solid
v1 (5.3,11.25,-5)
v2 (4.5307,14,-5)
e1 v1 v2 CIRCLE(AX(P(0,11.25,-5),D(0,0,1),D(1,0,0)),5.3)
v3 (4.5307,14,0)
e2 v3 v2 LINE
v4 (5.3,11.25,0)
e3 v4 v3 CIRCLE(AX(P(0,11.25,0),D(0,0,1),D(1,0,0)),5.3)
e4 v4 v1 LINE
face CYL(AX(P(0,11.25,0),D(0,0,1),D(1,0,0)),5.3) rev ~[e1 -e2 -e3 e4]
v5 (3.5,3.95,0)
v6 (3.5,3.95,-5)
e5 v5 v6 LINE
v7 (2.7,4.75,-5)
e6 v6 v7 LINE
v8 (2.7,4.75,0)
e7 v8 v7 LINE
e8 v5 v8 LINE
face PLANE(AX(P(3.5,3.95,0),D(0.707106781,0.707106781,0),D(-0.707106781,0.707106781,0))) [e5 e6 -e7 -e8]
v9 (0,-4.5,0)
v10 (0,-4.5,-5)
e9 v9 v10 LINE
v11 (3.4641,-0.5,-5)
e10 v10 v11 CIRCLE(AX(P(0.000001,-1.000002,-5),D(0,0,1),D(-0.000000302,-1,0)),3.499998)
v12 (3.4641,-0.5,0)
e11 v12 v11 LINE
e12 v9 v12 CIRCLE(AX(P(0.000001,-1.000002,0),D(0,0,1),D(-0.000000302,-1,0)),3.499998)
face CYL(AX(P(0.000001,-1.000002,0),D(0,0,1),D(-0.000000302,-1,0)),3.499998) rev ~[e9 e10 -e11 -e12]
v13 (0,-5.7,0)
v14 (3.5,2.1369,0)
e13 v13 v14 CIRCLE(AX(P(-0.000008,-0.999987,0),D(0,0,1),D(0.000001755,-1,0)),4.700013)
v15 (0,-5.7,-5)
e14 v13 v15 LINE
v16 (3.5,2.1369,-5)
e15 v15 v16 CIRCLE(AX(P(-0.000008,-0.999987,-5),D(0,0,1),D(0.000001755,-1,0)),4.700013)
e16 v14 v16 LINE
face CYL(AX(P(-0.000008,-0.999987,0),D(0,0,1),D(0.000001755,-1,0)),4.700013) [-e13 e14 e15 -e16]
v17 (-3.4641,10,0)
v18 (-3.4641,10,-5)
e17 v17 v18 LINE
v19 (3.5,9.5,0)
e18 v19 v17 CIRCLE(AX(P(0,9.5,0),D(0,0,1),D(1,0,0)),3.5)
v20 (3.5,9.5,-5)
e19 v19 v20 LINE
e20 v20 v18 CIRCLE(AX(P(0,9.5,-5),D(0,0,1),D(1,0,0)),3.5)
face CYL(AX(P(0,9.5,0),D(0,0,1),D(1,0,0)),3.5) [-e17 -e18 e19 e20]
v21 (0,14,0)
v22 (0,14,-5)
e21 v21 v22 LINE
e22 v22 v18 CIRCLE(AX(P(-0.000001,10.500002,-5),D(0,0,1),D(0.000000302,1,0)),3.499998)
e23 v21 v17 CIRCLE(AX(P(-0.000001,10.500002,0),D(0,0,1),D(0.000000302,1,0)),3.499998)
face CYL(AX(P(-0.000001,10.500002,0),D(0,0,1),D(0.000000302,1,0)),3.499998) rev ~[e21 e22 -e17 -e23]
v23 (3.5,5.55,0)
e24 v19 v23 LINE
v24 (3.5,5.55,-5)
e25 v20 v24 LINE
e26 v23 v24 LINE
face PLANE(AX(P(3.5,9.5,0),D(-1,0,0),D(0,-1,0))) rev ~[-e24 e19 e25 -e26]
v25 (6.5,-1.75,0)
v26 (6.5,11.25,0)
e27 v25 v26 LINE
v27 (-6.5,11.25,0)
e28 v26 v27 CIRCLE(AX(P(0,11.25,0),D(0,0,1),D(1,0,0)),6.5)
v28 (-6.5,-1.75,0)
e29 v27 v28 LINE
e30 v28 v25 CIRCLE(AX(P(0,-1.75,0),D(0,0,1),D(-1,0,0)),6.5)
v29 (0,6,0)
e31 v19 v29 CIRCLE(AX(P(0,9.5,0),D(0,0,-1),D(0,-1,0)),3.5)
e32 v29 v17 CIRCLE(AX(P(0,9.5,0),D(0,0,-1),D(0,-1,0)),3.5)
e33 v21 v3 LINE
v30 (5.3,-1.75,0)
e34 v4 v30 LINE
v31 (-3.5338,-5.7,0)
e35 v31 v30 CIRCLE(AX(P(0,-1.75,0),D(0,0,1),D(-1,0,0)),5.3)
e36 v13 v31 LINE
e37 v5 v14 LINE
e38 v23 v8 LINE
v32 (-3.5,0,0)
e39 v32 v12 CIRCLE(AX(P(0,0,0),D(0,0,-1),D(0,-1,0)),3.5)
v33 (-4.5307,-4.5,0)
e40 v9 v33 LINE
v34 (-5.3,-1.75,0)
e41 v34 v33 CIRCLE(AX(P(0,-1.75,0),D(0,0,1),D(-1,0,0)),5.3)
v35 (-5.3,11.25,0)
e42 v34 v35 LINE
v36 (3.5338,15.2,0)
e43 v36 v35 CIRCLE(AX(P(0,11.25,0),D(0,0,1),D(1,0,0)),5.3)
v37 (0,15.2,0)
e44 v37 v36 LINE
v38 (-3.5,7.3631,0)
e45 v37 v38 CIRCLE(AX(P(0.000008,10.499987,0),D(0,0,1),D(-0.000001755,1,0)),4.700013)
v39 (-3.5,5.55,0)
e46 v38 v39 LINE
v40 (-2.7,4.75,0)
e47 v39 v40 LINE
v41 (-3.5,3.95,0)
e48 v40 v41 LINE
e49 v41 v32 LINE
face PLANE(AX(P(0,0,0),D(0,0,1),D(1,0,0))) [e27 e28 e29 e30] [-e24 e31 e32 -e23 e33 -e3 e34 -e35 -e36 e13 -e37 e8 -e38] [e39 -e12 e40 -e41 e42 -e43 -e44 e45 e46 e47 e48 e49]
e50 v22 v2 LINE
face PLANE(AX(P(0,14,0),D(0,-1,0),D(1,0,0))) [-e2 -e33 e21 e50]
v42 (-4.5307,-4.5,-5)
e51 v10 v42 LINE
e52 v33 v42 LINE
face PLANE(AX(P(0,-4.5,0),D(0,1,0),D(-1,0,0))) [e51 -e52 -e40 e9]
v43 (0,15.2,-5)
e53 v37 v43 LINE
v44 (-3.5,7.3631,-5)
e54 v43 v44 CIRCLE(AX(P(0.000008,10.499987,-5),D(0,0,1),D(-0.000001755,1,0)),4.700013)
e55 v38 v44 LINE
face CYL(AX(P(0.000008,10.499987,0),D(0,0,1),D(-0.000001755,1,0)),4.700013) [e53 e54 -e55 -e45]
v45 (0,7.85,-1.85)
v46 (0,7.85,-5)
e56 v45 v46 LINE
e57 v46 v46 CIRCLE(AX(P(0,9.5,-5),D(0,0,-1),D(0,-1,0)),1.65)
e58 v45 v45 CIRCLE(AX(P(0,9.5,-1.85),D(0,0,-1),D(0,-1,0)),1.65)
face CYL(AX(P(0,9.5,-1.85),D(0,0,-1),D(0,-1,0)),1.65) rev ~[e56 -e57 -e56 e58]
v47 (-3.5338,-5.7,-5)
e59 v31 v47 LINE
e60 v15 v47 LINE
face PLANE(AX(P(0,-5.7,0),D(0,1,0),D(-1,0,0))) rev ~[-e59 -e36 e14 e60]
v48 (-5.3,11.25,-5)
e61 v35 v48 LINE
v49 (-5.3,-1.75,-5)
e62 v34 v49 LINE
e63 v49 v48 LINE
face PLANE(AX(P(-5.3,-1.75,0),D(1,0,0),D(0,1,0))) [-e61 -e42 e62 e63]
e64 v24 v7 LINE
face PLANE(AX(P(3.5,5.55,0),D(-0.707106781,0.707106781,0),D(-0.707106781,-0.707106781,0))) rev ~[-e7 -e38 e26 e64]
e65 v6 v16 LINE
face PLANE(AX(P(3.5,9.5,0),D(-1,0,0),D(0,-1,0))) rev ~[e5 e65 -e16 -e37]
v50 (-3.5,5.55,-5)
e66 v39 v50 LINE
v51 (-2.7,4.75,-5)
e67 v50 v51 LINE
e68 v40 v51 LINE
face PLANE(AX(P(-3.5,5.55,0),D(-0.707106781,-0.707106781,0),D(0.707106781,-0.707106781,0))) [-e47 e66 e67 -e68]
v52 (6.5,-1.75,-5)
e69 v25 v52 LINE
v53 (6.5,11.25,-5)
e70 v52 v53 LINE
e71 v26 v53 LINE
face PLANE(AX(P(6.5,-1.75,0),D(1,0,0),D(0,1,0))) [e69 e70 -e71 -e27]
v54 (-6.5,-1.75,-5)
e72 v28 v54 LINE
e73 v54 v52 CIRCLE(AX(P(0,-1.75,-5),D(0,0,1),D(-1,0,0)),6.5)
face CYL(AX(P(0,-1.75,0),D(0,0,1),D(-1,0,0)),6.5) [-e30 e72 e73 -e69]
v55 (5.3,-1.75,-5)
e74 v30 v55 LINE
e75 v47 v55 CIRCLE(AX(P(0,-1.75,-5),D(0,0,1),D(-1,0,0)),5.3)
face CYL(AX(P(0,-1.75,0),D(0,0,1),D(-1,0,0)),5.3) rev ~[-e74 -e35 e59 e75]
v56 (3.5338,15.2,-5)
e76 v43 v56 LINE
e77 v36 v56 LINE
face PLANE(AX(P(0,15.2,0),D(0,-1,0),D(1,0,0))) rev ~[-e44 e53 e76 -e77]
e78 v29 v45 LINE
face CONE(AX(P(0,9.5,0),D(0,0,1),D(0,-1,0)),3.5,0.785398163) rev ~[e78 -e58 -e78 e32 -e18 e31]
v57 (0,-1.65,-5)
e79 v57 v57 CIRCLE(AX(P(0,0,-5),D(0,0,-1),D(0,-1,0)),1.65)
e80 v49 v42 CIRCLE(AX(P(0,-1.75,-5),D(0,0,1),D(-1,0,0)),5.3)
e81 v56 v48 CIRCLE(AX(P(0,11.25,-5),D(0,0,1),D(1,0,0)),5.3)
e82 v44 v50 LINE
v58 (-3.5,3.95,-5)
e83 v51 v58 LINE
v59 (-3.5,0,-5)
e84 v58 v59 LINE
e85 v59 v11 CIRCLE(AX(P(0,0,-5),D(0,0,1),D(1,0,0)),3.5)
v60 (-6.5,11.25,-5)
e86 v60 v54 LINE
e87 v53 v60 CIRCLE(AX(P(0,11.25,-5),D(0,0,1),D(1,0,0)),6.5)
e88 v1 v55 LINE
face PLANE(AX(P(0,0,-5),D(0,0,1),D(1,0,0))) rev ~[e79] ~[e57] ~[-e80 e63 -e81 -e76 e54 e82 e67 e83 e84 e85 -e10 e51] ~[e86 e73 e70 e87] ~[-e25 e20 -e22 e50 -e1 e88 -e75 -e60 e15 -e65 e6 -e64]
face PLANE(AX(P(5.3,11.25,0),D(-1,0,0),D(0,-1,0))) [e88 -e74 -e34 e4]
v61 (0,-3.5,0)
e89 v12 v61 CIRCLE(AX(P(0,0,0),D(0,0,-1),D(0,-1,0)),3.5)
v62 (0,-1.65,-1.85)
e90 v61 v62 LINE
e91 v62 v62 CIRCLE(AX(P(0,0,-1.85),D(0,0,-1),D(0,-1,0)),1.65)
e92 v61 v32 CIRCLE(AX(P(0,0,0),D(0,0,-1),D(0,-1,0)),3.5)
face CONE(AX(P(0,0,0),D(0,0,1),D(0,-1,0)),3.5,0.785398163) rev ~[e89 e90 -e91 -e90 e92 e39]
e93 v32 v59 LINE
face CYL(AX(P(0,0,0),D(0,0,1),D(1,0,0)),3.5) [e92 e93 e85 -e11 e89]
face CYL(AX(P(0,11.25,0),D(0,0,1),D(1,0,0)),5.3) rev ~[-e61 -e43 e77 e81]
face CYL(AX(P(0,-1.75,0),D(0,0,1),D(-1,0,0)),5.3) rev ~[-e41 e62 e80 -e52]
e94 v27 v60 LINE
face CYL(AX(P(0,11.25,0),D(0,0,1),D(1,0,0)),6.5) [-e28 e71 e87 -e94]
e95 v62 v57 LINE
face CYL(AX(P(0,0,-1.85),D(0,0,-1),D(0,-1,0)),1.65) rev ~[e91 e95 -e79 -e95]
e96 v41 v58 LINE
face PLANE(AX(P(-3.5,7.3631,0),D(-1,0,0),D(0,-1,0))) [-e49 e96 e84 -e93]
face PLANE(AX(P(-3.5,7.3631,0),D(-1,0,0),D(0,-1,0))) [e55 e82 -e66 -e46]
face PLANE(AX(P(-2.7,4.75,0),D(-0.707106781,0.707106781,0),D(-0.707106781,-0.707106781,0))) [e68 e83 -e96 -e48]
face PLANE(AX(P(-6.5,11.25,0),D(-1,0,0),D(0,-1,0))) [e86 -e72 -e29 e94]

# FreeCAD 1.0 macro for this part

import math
import FreeCAD as App
import Part
import Sketcher

V = App.Vector
Q = App.Units.Quantity


def add_polygon(sketch, points):
    """Adds a closed chain of lines whose ends are joined by coincident constraints."""
    first, n = sketch.GeometryCount, len(points)
    for a, b in zip(points, points[1:] + points[:1]):
        sketch.addGeometry(Part.LineSegment(App.Vector(*a, 0), App.Vector(*b, 0)), False)
    for i in range(n):
        sketch.addConstraint(Sketcher.Constraint("Coincident", first + i, 2, first + (i + 1) % n, 1))

doc = App.newDocument("Part")
body = doc.addObject("PartDesign::Body", "Body")

# Sketch on XY plane
sketch1 = doc.addObject("Sketcher::SketchObject", "Sketch")
body.addObject(sketch1)
sketch1.AttachmentSupport = (doc.XY_Plane, [""])
sketch1.MapMode = "FlatFace"
sketch1.addGeometry(Part.ArcOfCircle(Part.Circle(V(0, -2, 0), V(0, 0, 1), 6), math.radians(180), math.radians(360)), False)
sketch1.addGeometry(Part.LineSegment(V(6, -2, 0), V(6, 11, 0)), False)
sketch1.addGeometry(Part.ArcOfCircle(Part.Circle(V(0, 11, 0), V(0, 0, 1), 6), math.radians(0), math.radians(180)), False)
sketch1.addGeometry(Part.LineSegment(V(-6, 11, 0), V(-6, -2, 0)), False)
sketch1.addConstraint(Sketcher.Constraint("Tangent", 0, 2, 1, 1))
sketch1.addConstraint(Sketcher.Constraint("Tangent", 1, 2, 2, 1))
sketch1.addConstraint(Sketcher.Constraint("Tangent", 2, 2, 3, 1))
sketch1.addConstraint(Sketcher.Constraint("Tangent", 3, 2, 0, 1))
sketch1.addConstraint(Sketcher.Constraint("Vertical", 1))
sketch1.addConstraint(Sketcher.Constraint("Vertical", 3))
sketch1.addConstraint(Sketcher.Constraint("PointOnObject", 0, 3, -2))
sketch1.addConstraint(Sketcher.Constraint("Radius", 0, Q("6.5 mm")))
sketch1.addConstraint(Sketcher.Constraint("DistanceY", 1, 1, 1, 2, Q("13 mm")))
sketch1.addConstraint(Sketcher.Constraint("DistanceY", 0, 3, -1, 1, Q("1.75 mm")))
pad1 = doc.addObject("PartDesign::Pad", "Pad")
body.addObject(pad1)
pad1.Profile = sketch1
pad1.Length = 5
pad1.Reversed = True

# Sketch on XY plane
sketch2 = doc.addObject("Sketcher::SketchObject", "Sketch001")
body.addObject(sketch2)
sketch2.AttachmentSupport = (doc.XY_Plane, [""])
sketch2.MapMode = "FlatFace"
sketch2.addGeometry(Part.Circle(V(0, 9.5, 0), V(0, 0, 1), 1.6), False)
sketch2.addGeometry(Part.Circle(V(0, 0, 0), V(0, 0, 1), 1.6), False)
sketch2.addConstraint(Sketcher.Constraint("Coincident", 1, 3, -1, 1))
sketch2.addConstraint(Sketcher.Constraint("Equal", 0, 1))
sketch2.addConstraint(Sketcher.Constraint("PointOnObject", 0, 3, -2))
sketch2.addConstraint(Sketcher.Constraint("Diameter", 0, Q("3.3 mm")))
sketch2.addConstraint(Sketcher.Constraint("DistanceY", -1, 1, 0, 3, Q("9.5 mm")))
doc.recompute()
hole = doc.addObject("PartDesign::Hole", "Hole")
body.addObject(hole)
hole.Profile = sketch2
hole.ThreadType = "None"
hole.Diameter = 3.3
hole.DepthType = "ThroughAll"
hole.HoleCutType = "Countersink"
hole.HoleCutDiameter = 7
hole.HoleCutCountersinkAngle = 90

# Sketch on XY plane
sketch3 = doc.addObject("Sketcher::SketchObject", "Sketch002")
body.addObject(sketch3)
sketch3.AttachmentSupport = (doc.XY_Plane, [""])
sketch3.MapMode = "FlatFace"
sketch3.addGeometry(Part.ArcOfCircle(Part.Circle(V(0, 9.5, 0), V(0, 0, 1), 3.5), math.radians(0), math.radians(172)), False)
sketch3.addGeometry(Part.LineSegment(V(3.5, 9.5, 0), V(3.5, 2.1, 0)), False)
sketch3.addGeometry(Part.ArcOfCircle(Part.Circle(V(0, -1, 0), V(0, 0, 1), 4.7), math.radians(-90), math.radians(42)), False)
sketch3.addGeometry(Part.LineSegment(V(0, -5.7, 0), V(-3.5, -5.7, 0)), False)
sketch3.addGeometry(Part.ArcOfCircle(Part.Circle(V(0, -1.8, 0), V(0, 0, 1), 5.3), math.radians(-132), math.radians(0)), False)
sketch3.addGeometry(Part.LineSegment(V(5.3, -1.8, 0), V(5.3, 11.2, 0)), False)
sketch3.addGeometry(Part.ArcOfCircle(Part.Circle(V(0, 11.2, 0), V(0, 0, 1), 5.3), math.radians(0), math.radians(31)), False)
sketch3.addGeometry(Part.LineSegment(V(4.5, 14, 0), V(0, 14, 0)), False)
sketch3.addGeometry(Part.ArcOfCircle(Part.Circle(V(0, 10.5, 0), V(0, 0, 1), 3.5), math.radians(90), math.radians(188)), False)
sketch3.addGeometry(Part.LineSegment(V(-3.5, 0, 0), V(-3.5, 7.4, 0)), False)
sketch3.addGeometry(Part.ArcOfCircle(Part.Circle(V(0, 10.5, 0), V(0, 0, 1), 4.7), math.radians(90), math.radians(222)), False)
sketch3.addGeometry(Part.LineSegment(V(0, 15.2, 0), V(3.5, 15.2, 0)), False)
sketch3.addGeometry(Part.ArcOfCircle(Part.Circle(V(0, 11.2, 0), V(0, 0, 1), 5.3), math.radians(48), math.radians(180)), False)
sketch3.addGeometry(Part.LineSegment(V(-5.3, 11.2, 0), V(-5.3, -1.8, 0)), False)
sketch3.addGeometry(Part.ArcOfCircle(Part.Circle(V(0, -1.8, 0), V(0, 0, 1), 5.3), math.radians(180), math.radians(211)), False)
sketch3.addGeometry(Part.LineSegment(V(-4.5, -4.5, 0), V(0, -4.5, 0)), False)
sketch3.addGeometry(Part.ArcOfCircle(Part.Circle(V(0, -1, 0), V(0, 0, 1), 3.5), math.radians(-90), math.radians(8)), False)
sketch3.addGeometry(Part.ArcOfCircle(Part.Circle(V(0, 0, 0), V(0, 0, 1), 3.5), math.radians(180), math.radians(352)), False)
sketch3.addConstraint(Sketcher.Constraint("Tangent", 0, 1, 1, 1))
sketch3.addConstraint(Sketcher.Constraint("Coincident", 1, 2, 2, 2))
sketch3.addConstraint(Sketcher.Constraint("Tangent", 2, 1, 3, 1))
sketch3.addConstraint(Sketcher.Constraint("Coincident", 3, 2, 4, 1))
sketch3.addConstraint(Sketcher.Constraint("Tangent", 4, 2, 5, 1))
sketch3.addConstraint(Sketcher.Constraint("Tangent", 5, 2, 6, 1))
sketch3.addConstraint(Sketcher.Constraint("Coincident", 6, 2, 7, 1))
sketch3.addConstraint(Sketcher.Constraint("Tangent", 7, 2, 8, 1))
sketch3.addConstraint(Sketcher.Constraint("Coincident", 8, 2, 0, 2))
sketch3.addConstraint(Sketcher.Constraint("Coincident", 9, 2, 10, 2))
sketch3.addConstraint(Sketcher.Constraint("Tangent", 10, 1, 11, 1))
sketch3.addConstraint(Sketcher.Constraint("Coincident", 11, 2, 12, 1))
sketch3.addConstraint(Sketcher.Constraint("Tangent", 12, 2, 13, 1))
sketch3.addConstraint(Sketcher.Constraint("Tangent", 13, 2, 14, 1))
sketch3.addConstraint(Sketcher.Constraint("Coincident", 14, 2, 15, 1))
sketch3.addConstraint(Sketcher.Constraint("Tangent", 15, 2, 16, 1))
sketch3.addConstraint(Sketcher.Constraint("Coincident", 16, 2, 17, 2))
sketch3.addConstraint(Sketcher.Constraint("Tangent", 17, 1, 9, 1))
sketch3.addConstraint(Sketcher.Constraint("Vertical", 1))
sketch3.addConstraint(Sketcher.Constraint("Horizontal", 3))
sketch3.addConstraint(Sketcher.Constraint("Vertical", 5))
sketch3.addConstraint(Sketcher.Constraint("Horizontal", 7))
sketch3.addConstraint(Sketcher.Constraint("Vertical", 9))
sketch3.addConstraint(Sketcher.Constraint("Horizontal", 11))
sketch3.addConstraint(Sketcher.Constraint("Vertical", 13))
sketch3.addConstraint(Sketcher.Constraint("Horizontal", 15))
sketch3.addConstraint(Sketcher.Constraint("Coincident", 17, 3, -1, 1))
sketch3.addConstraint(Sketcher.Constraint("Coincident", 10, 3, 8, 3))
sketch3.addConstraint(Sketcher.Constraint("Coincident", 12, 3, 6, 3))
sketch3.addConstraint(Sketcher.Constraint("Coincident", 14, 3, 4, 3))
sketch3.addConstraint(Sketcher.Constraint("Coincident", 16, 3, 2, 3))
sketch3.addConstraint(Sketcher.Constraint("Equal", 4, 6))
sketch3.addConstraint(Sketcher.Constraint("Equal", 0, 8))
sketch3.addConstraint(Sketcher.Constraint("Equal", 2, 10))
sketch3.addConstraint(Sketcher.Constraint("Equal", 6, 12))
sketch3.addConstraint(Sketcher.Constraint("Equal", 8, 16))
sketch3.addConstraint(Sketcher.Constraint("Equal", 16, 17))
sketch3.addConstraint(Sketcher.Constraint("PointOnObject", 0, 3, -2))
sketch3.addConstraint(Sketcher.Constraint("PointOnObject", 2, 3, -2))
sketch3.addConstraint(Sketcher.Constraint("PointOnObject", 4, 3, -2))
sketch3.addConstraint(Sketcher.Constraint("PointOnObject", 8, 3, -2))
sketch3.addConstraint(Sketcher.Constraint("Equal", 3, 11))
sketch3.addConstraint(Sketcher.Constraint("Equal", 1, 9))
sketch3.addConstraint(Sketcher.Constraint("Radius", 0, Q("3.5 mm")))
sketch3.addConstraint(Sketcher.Constraint("DistanceY", 2, 3, -1, 1, Q("1 mm")))
sketch3.addConstraint(Sketcher.Constraint("Radius", 2, Q("4.7 mm")))
sketch3.addConstraint(Sketcher.Constraint("Radius", 4, Q("5.3 mm")))
sketch3.addConstraint(Sketcher.Constraint("DistanceY", 5, 1, 5, 2, Q("13 mm")))
sketch3.addConstraint(Sketcher.Constraint("DistanceY", -1, 1, 6, 2, Q("14 mm")))
pocket1 = doc.addObject("PartDesign::Pocket", "Pocket")
body.addObject(pocket1)
pocket1.Profile = sketch3
pocket1.Type = "ThroughAll"

# Sketch on XY plane
sketch4 = doc.addObject("Sketcher::SketchObject", "Sketch003")
body.addObject(sketch4)
sketch4.AttachmentSupport = (doc.XY_Plane, [""])
sketch4.MapMode = "FlatFace"
add_polygon(sketch4, [(-2.7, 4.8), (-3.5, 5.5), (-3.5, 4)])  # lines 0-2
add_polygon(sketch4, [(2.7, 4.8), (3.5, 4), (3.5, 5.5)])  # lines 3-5
sketch4.addConstraint(Sketcher.Constraint("Vertical", 1))
sketch4.addConstraint(Sketcher.Constraint("Vertical", 4))
sketch4.addConstraint(Sketcher.Constraint("Symmetric", 1, 2, 3, 2, -2))
sketch4.addConstraint(Sketcher.Constraint("Symmetric", 2, 2, 5, 2, -2))
sketch4.addConstraint(Sketcher.Constraint("Perpendicular", 0, 2))
sketch4.addConstraint(Sketcher.Constraint("Perpendicular", 2, 3))
sketch4.addConstraint(Sketcher.Constraint("Perpendicular", 3, 5))
sketch4.addConstraint(Sketcher.Constraint("DistanceX", 0, 2, 2, 2, Q("0.8 mm")))
sketch4.addConstraint(Sketcher.Constraint("DistanceX", 1, 2, 3, 2, Q("7 mm")))
sketch4.addConstraint(Sketcher.Constraint("DistanceY", -1, 1, 0, 2, Q("5.55 mm")))
pocket2 = doc.addObject("PartDesign::Pocket", "Pocket001")
body.addObject(pocket2)
pocket2.Profile = sketch4
pocket2.Type = "ThroughAll"

doc.recompute()
